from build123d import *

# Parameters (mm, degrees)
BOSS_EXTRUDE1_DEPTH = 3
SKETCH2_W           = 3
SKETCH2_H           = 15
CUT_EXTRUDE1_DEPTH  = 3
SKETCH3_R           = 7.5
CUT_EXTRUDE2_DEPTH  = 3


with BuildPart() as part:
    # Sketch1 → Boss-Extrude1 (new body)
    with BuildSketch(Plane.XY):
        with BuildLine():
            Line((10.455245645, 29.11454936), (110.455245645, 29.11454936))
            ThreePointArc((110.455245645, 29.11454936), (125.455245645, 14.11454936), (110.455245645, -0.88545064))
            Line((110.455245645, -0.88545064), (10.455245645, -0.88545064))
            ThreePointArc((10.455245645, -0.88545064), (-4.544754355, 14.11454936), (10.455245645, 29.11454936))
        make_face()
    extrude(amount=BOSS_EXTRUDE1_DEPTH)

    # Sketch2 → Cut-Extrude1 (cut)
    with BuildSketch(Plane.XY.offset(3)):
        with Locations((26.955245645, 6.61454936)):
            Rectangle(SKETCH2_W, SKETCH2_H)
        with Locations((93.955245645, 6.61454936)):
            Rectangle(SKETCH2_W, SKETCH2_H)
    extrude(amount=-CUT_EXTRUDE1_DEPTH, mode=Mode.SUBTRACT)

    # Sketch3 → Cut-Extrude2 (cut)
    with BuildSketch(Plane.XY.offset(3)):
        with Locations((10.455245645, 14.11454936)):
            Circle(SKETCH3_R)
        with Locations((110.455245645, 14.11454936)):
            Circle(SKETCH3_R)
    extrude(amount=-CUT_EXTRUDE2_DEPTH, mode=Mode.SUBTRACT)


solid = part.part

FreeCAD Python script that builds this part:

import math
import FreeCAD as App
import Part
import Sketcher

V = App.Vector


def add_polygon(sketch, points):
    """Adds a closed chain of lines whose ends are joined by coincident constraints."""
    first, n = sketch.GeometryCount, len(points)
    for a, b in zip(points, points[1:] + points[:1]):
        sketch.addGeometry(Part.LineSegment(App.Vector(*a, 0), App.Vector(*b, 0)), False)
    for i in range(n):
        sketch.addConstraint(Sketcher.Constraint("Coincident", first + i, 2, first + (i + 1) % n, 1))

doc = App.newDocument("Part")
body = doc.addObject("PartDesign::Body", "Body")

# Sketch on XY plane
sketch1 = body.newObject("Sketcher::SketchObject", "Sketch")
sketch1.AttachmentSupport = (doc.getObject("XY_Plane"), [""])
sketch1.MapMode = "FlatFace"
sketch1.addGeometry([
    Part.LineSegment(V(110, 29, 0), V(10, 29, 0)),
    Part.ArcOfCircle(Part.Circle(V(10, 14, 0), V(0, 0, 1), 15), math.radians(90), math.radians(270)),
    Part.LineSegment(V(10, -1, 0), V(110, -1, 0)),
    Part.ArcOfCircle(Part.Circle(V(110, 14, 0), V(0, 0, 1), 15), math.radians(-90), math.radians(90)),
], False)
sketch1.addConstraint([
    Sketcher.Constraint("Tangent", 0, 2, 1, 1),
    Sketcher.Constraint("Tangent", 1, 2, 2, 1),
    Sketcher.Constraint("Tangent", 2, 2, 3, 1),
    Sketcher.Constraint("Tangent", 3, 2, 0, 1),
    Sketcher.Constraint("Horizontal", 0),
    Sketcher.Constraint("Horizontal", 2),
    Sketcher.Constraint("Radius", 1, 15.0),
    Sketcher.Constraint("DistanceX", 0, 2, 0, 1, 100.0),
    Sketcher.Constraint("DistanceY", -1, 1, 1, 3, 14.114549),
    Sketcher.Constraint("DistanceX", -1, 1, 1, 3, 10.455246),
])
pad1 = body.newObject("PartDesign::Pad", "Pad")
pad1.Profile = sketch1
pad1.Length = 3

# Sketch on XY plane
sketch2 = body.newObject("Sketcher::SketchObject", "Sketch001")
sketch2.AttachmentSupport = (doc.getObject("XY_Plane"), [""])
sketch2.MapMode = "FlatFace"
sketch2.AttachmentOffset = App.Placement(V(0, 0, 3), App.Rotation())
add_polygon(sketch2, [(25.5, 14.1), (25.5, -0.9), (28.5, -0.9), (28.5, 14.1)])  # lines 0-3
add_polygon(sketch2, [(92.5, 14.1), (92.5, -0.9), (95.5, -0.9), (95.5, 14.1)])  # lines 4-7
sketch2.addConstraint([
    Sketcher.Constraint("Vertical", 0),
    Sketcher.Constraint("Horizontal", 1),
    Sketcher.Constraint("Vertical", 2),
    Sketcher.Constraint("Horizontal", 3),
    Sketcher.Constraint("Vertical", 4),
    Sketcher.Constraint("Horizontal", 5),
    Sketcher.Constraint("Vertical", 6),
    Sketcher.Constraint("Horizontal", 7),
    Sketcher.Constraint("Horizontal", 1, 2, 4, 2),
    Sketcher.Constraint("Horizontal", 3, 2, 6, 2),
    Sketcher.Constraint("Equal", 3, 5),
    Sketcher.Constraint("DistanceX", 1, 1, 1, 2, 3.0),
    Sketcher.Constraint("DistanceY", 0, 2, 0, 1, 15.0),
    Sketcher.Constraint("DistanceX", 1, 2, 4, 2, 64.0),
    Sketcher.Constraint("DistanceY", 0, 2, -1, 1, 0.885451),
    Sketcher.Constraint("DistanceX", -1, 1, 0, 2, 25.455246),
])
pocket1 = body.newObject("PartDesign::Pocket", "Pocket")
pocket1.Profile = sketch2
pocket1.Length = 3

# Sketch on XY plane
sketch3 = body.newObject("Sketcher::SketchObject", "Sketch002")
sketch3.AttachmentSupport = (doc.getObject("XY_Plane"), [""])
sketch3.MapMode = "FlatFace"
sketch3.AttachmentOffset = App.Placement(V(0, 0, 3), App.Rotation())
sketch3.addGeometry([
    Part.Circle(V(10, 14, 0), V(0, 0, 1), 8),
    Part.Circle(V(110, 14, 0), V(0, 0, 1), 8),
], False)
sketch3.addConstraint([
    Sketcher.Constraint("Equal", 0, 1),
    Sketcher.Constraint("Horizontal", 0, 3, 1, 3),
    Sketcher.Constraint("Diameter", 0, 15.0),
    Sketcher.Constraint("DistanceX", 0, 3, 1, 3, 100.0),
    Sketcher.Constraint("DistanceY", -1, 1, 0, 3, 14.114549),
    Sketcher.Constraint("DistanceX", -1, 1, 0, 3, 10.455246),
])
pocket2 = body.newObject("PartDesign::Pocket", "Pocket001")
pocket2.Profile = sketch3
pocket2.Length = 3

doc.recompute()
